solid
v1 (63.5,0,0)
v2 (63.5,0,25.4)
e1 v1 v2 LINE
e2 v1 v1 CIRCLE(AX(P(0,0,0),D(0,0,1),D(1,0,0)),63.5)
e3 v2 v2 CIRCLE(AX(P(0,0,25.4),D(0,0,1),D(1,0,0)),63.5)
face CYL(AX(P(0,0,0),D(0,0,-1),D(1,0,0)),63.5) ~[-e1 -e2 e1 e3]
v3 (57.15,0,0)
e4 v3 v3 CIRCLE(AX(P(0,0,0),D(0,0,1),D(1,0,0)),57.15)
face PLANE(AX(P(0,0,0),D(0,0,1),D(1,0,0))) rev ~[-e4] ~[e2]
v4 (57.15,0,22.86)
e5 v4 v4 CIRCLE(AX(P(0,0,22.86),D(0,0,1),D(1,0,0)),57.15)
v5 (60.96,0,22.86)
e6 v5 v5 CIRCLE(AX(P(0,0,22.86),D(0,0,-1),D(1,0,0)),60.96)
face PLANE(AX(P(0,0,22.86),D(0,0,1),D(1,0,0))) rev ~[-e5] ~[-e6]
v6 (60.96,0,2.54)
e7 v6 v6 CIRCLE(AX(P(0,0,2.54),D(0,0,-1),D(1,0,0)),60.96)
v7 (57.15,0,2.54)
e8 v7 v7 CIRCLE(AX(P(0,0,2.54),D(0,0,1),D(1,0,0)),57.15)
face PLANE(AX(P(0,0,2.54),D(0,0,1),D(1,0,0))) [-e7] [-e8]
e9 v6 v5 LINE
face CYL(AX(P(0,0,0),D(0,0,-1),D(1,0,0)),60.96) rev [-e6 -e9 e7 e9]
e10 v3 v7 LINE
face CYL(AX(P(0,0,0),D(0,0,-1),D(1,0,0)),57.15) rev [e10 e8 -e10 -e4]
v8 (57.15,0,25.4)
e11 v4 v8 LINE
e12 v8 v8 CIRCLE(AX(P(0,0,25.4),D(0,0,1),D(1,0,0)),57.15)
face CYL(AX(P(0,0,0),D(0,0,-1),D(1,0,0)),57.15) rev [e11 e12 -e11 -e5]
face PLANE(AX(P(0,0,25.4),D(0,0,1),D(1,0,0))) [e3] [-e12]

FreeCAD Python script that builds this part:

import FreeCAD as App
import Part
import Sketcher

V = App.Vector
Q = App.Units.Quantity


def faces_at(feature, points):
    """Names of the faces that lie closest to the given points."""
    faces = feature.Shape.Faces
    near = lambda p: min(range(len(faces)), key=lambda i: faces[i].distToShape(Part.Vertex(*p))[0])
    return sorted({f"Face{near(p) + 1}" for p in points})

doc = App.newDocument("Part")
body = doc.addObject("PartDesign::Body", "Body")

sketch1 = doc.addObject("Sketcher::SketchObject", "Sketch")
body.addObject(sketch1)
sketch1.AttachmentSupport = (doc.XY_Plane, [""])
sketch1.MapMode = "FlatFace"
sketch1.addGeometry(Part.Circle(V(0, 0, 0), V(0, 0, 1), 63.5), False)
sketch1.addGeometry(Part.Circle(V(0, 0, 0), V(0, 0, 1), 57.15), False)
sketch1.addConstraint(Sketcher.Constraint("Coincident", 0, 3, -1, 1))
sketch1.addConstraint(Sketcher.Constraint("Coincident", 1, 3, -1, 1))
sketch1.addConstraint(Sketcher.Constraint("Diameter", 0, Q("5 in")))
sketch1.addConstraint(Sketcher.Constraint("Diameter", 1, Q("4.5 in")))
pad1 = doc.addObject("PartDesign::Pad", "Pad")
body.addObject(pad1)
pad1.Profile = sketch1
pad1.Length = Q("1 in")
doc.recompute()

thickness = doc.addObject("PartDesign::Thickness", "Thickness")
body.addObject(thickness)
thickness.Base = (pad1, faces_at(pad1, [(-57.15, 0, 12.7)]))
thickness.Value = Q("0.1 in")
thickness.Reversed = True
thickness.Join = "Arc"

doc.recompute()
